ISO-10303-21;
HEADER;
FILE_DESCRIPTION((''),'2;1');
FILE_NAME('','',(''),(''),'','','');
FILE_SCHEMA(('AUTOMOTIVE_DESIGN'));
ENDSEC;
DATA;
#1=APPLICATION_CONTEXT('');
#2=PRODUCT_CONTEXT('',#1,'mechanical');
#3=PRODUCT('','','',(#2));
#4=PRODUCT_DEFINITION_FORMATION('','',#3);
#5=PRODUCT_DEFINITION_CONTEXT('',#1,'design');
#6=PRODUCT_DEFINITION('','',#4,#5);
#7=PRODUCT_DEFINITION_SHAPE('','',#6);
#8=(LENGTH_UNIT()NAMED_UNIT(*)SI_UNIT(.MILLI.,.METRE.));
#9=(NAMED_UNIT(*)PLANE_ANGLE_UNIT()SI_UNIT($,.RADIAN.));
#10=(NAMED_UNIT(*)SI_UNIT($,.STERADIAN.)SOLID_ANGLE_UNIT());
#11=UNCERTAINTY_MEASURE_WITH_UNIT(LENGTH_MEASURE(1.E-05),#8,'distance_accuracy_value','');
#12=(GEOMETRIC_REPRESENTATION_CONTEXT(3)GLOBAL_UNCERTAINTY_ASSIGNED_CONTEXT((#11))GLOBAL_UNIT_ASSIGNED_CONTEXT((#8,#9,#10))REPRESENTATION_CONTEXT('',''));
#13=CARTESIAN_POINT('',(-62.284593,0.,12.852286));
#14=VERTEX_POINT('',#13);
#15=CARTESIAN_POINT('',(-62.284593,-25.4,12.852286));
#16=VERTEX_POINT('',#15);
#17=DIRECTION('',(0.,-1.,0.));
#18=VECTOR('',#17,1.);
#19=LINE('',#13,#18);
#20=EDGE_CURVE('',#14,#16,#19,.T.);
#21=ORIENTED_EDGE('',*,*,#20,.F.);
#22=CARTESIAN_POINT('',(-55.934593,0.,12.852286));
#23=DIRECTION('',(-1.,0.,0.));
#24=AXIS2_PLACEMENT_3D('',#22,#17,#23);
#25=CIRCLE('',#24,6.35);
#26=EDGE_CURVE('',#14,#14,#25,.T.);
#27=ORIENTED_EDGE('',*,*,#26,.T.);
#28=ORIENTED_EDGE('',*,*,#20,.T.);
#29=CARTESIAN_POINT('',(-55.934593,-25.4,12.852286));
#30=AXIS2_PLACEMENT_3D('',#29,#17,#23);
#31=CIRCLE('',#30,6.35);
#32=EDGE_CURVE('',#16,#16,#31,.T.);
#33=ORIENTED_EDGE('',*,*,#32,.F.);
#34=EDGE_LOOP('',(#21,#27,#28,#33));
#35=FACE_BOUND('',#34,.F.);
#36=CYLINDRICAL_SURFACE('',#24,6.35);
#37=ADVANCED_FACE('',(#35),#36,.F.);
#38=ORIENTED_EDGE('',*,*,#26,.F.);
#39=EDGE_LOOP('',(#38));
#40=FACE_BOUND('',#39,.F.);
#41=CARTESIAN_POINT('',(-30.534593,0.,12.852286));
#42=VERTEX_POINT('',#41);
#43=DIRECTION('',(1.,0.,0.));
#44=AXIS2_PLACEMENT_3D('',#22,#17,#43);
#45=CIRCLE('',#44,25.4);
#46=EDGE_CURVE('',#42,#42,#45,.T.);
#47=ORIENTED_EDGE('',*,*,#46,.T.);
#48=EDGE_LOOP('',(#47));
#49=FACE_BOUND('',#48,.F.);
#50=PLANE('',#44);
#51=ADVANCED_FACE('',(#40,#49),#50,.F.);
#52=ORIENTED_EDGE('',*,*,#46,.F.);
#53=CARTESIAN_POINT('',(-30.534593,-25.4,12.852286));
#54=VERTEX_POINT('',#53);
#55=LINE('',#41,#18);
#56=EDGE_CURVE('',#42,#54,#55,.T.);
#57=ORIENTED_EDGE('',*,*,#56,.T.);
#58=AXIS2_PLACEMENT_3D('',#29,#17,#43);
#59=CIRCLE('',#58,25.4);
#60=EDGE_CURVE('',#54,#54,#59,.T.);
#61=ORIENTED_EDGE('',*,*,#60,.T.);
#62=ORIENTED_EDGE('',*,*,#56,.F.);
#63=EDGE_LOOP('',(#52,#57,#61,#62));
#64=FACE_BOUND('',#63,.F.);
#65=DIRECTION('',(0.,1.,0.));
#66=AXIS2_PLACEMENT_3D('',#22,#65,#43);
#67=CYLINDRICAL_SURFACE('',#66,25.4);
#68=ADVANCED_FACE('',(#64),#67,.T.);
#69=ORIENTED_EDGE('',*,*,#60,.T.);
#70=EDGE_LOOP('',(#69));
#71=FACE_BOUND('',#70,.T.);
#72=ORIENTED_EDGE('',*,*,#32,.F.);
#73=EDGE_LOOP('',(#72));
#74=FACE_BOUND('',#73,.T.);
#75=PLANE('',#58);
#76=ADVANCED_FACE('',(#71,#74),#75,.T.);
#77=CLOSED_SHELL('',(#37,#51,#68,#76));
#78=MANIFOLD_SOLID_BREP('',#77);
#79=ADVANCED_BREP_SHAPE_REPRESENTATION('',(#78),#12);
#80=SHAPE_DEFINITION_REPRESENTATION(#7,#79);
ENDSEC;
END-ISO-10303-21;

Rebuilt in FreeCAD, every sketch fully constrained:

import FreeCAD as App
import Part
import Sketcher

V = App.Vector
Q = App.Units.Quantity

doc = App.newDocument("Part")
body = doc.addObject("PartDesign::Body", "Body")

# Sketch on XZ plane
sketch1 = body.newObject("Sketcher::SketchObject", "Sketch")
sketch1.AttachmentSupport = (doc.getObject("XZ_Plane"), [""])
sketch1.MapMode = "FlatFace"
sketch1.addGeometry(Part.Circle(V(-55.934593, 12.852286, 0), V(0, 0, 1), 25.4), False)
sketch1.addConstraint([
    Sketcher.Constraint("Diameter", 0, Q("2 in")),
    Sketcher.Constraint("DistanceX", 0, 3, -1, 1, 55.934593),
    Sketcher.Constraint("DistanceY", -1, 1, 0, 3, 12.852286),
])
pad1 = body.newObject("PartDesign::Pad", "Pad")
pad1.Profile = sketch1
pad1.Length = Q("1 in")

# Sketch on XZ plane
sketch2 = body.newObject("Sketcher::SketchObject", "Sketch001")
sketch2.AttachmentSupport = (doc.getObject("XZ_Plane"), [""])
sketch2.MapMode = "FlatFace"
sketch2.addGeometry(Part.Circle(V(-55.934593, 12.852286, 0), V(0, 0, 1), 6.35), False)
sketch2.addConstraint([
    Sketcher.Constraint("Diameter", 0, Q("0.5 in")),
    Sketcher.Constraint("DistanceX", 0, 3, -1, 1, 55.934593),
    Sketcher.Constraint("DistanceY", -1, 1, 0, 3, 12.852286),
])
doc.recompute()
hole = body.newObject("PartDesign::Hole", "Hole")
hole.Profile = sketch2
hole.ThreadType = "None"
hole.Diameter = Q("0.5 in")
hole.DepthType = "ThroughAll"
hole.HoleCutType = "Counterbore"
hole.HoleCutDiameter = Q("1.5 in")
hole.HoleCutDepth = Q("0 in")
hole.Reversed = True

doc.recompute()
